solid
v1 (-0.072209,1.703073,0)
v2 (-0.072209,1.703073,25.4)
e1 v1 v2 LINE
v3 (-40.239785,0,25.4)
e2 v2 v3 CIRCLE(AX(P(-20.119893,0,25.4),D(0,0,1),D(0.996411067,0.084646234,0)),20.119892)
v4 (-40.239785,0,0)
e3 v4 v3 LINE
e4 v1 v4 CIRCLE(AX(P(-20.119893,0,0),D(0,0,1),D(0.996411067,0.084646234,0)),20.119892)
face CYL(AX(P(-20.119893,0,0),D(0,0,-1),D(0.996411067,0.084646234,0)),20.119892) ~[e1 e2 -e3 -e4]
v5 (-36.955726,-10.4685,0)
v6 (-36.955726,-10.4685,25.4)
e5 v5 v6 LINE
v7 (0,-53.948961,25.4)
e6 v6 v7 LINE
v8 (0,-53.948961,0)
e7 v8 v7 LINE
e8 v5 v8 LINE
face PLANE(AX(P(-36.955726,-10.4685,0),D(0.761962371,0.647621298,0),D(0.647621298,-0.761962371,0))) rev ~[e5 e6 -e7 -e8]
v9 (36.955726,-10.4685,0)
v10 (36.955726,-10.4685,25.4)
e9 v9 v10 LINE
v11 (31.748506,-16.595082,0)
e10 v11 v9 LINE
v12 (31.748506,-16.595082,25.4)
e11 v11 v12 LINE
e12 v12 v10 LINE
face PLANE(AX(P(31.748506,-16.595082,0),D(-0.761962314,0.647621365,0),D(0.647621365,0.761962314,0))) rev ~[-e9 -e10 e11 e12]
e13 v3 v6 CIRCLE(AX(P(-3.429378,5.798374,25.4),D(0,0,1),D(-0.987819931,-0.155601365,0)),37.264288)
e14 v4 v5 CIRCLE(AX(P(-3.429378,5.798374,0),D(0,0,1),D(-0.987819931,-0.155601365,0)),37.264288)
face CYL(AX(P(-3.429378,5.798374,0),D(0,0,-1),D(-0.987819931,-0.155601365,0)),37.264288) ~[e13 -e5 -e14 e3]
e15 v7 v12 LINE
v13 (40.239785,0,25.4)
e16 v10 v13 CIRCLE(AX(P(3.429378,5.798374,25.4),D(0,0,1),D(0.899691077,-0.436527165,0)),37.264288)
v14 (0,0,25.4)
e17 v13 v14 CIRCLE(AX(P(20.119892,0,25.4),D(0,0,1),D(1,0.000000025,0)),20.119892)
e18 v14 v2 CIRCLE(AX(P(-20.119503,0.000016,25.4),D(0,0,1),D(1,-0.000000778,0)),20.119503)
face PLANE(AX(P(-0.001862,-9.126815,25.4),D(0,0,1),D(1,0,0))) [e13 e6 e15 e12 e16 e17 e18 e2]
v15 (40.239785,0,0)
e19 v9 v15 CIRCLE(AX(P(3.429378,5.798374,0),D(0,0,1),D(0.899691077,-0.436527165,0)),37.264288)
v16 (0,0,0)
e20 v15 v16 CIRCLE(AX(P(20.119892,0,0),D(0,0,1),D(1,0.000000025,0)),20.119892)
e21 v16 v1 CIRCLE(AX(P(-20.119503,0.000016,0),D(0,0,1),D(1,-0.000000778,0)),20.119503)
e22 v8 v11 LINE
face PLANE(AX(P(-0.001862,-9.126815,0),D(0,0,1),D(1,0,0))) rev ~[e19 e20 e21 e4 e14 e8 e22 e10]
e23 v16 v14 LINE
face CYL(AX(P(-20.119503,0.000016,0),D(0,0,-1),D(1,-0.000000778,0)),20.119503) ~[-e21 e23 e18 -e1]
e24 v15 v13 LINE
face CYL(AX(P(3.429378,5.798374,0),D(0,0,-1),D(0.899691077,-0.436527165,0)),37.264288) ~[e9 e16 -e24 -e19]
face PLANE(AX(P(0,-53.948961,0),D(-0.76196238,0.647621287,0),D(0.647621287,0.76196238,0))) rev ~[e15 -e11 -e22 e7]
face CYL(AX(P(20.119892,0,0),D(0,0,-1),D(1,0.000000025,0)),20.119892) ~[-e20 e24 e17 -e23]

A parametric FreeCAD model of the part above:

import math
import FreeCAD as App
import Part
import Sketcher
Q = App.Units.Quantity

doc = App.newDocument("Part")
body = doc.addObject("PartDesign::Body", "Body")

sketch1 = body.newObject("Sketcher::SketchObject", "Sketch")
sketch1.AttachmentSupport = (doc.getObject("XY_Plane"), [""])
sketch1.MapMode = "FlatFace"
sketch1.addGeometry(Part.ArcOfCircle(Part.Circle(App.Vector(3.429378, 5.798374, 0), App.Vector(0, 0, 1), 37.264288), math.radians(-25.88251), math.radians(-8.951675)), False)
sketch1.addGeometry(Part.ArcOfCircle(Part.Circle(App.Vector(20.119892, 0, 0), App.Vector(0, 0, 1), 20.119892), math.radians(0.000001), math.radians(179.999999)), False)
sketch1.addGeometry(Part.ArcOfCircle(Part.Circle(App.Vector(-20.119503, 0.000016, 0), App.Vector(0, 0, 1), 20.119503), math.radians(-0.000045), math.radians(4.855731)), False)
sketch1.addGeometry(Part.ArcOfCircle(Part.Circle(App.Vector(-20.119893, 0, 0), App.Vector(0, 0, 1), 20.119892), math.radians(4.855682), math.radians(180)), False)
sketch1.addGeometry(Part.ArcOfCircle(Part.Circle(App.Vector(-3.429378, 5.798374, 0), App.Vector(0, 0, 1), 37.264288), math.radians(-171.048325), math.radians(-154.11749)), False)
sketch1.addGeometry(Part.LineSegment(App.Vector(-36.955726, -10.4685, 0), App.Vector(0, -53.948961, 0)), False)
sketch1.addGeometry(Part.LineSegment(App.Vector(0, -53.948961, 0), App.Vector(31.748506, -16.595082, 0)), False)
sketch1.addGeometry(Part.LineSegment(App.Vector(31.748506, -16.595082, 0), App.Vector(36.955726, -10.4685, 0)), False)
sketch1.addConstraint(Sketcher.Constraint("Coincident", 0, 2, 1, 1))
sketch1.addConstraint(Sketcher.Constraint("Coincident", 1, 2, 2, 1))
sketch1.addConstraint(Sketcher.Constraint("Coincident", 2, 2, 3, 1))
sketch1.addConstraint(Sketcher.Constraint("Coincident", 3, 2, 4, 1))
sketch1.addConstraint(Sketcher.Constraint("Coincident", 4, 2, 5, 1))
sketch1.addConstraint(Sketcher.Constraint("Coincident", 5, 2, 6, 1))
sketch1.addConstraint(Sketcher.Constraint("Coincident", 6, 2, 7, 1))
sketch1.addConstraint(Sketcher.Constraint("Coincident", 7, 2, 0, 1))
sketch1.addConstraint(Sketcher.Constraint("Coincident", 1, 2, -1, 1))
sketch1.addConstraint(Sketcher.Constraint("PointOnObject", 1, 3, -1))
sketch1.addConstraint(Sketcher.Constraint("PointOnObject", 3, 3, -1))
sketch1.addConstraint(Sketcher.Constraint("PointOnObject", 0, 2, -1))
sketch1.addConstraint(Sketcher.Constraint("PointOnObject", 3, 2, -1))
sketch1.addConstraint(Sketcher.Constraint("PointOnObject", 5, 2, -2))
sketch1.addConstraint(Sketcher.Constraint("Radius", 0, Q("37.264288 mm")))
sketch1.addConstraint(Sketcher.Constraint("Radius", 4, Q("37.264288 mm")))
sketch1.addConstraint(Sketcher.Constraint("Radius", 1, Q("20.119892 mm")))
sketch1.addConstraint(Sketcher.Constraint("Radius", 2, Q("20.119503 mm")))
sketch1.addConstraint(Sketcher.Constraint("Radius", 3, Q("20.119892 mm")))
sketch1.addConstraint(Sketcher.Constraint("DistanceY", 6, 2, 2, 2, Q("0.7203998 in")))
sketch1.addConstraint(Sketcher.Constraint("DistanceY", 4, 2, -1, 1, Q("10.4685 mm")))
sketch1.addConstraint(Sketcher.Constraint("DistanceY", 7, 2, -1, 1, Q("10.4685 mm")))
sketch1.addConstraint(Sketcher.Constraint("DistanceY", 2, 2, 4, 3, Q("4.095301 mm")))
sketch1.addConstraint(Sketcher.Constraint("DistanceY", 2, 2, 0, 3, Q("4.095301 mm")))
sketch1.addConstraint(Sketcher.Constraint("Distance", 5, Q("57.06379 mm")))
sketch1.addConstraint(Sketcher.Constraint("Distance", 6, Q("49.023259 mm")))
sketch1.addConstraint(Sketcher.Constraint("Distance", 7, Q("8.040532 mm")))
sketch1.addConstraint(Sketcher.Constraint("DistanceX", -1, 1, 0, 3, Q("3.429378 mm")))
pad1 = body.newObject("PartDesign::Pad", "Pad")
pad1.Profile = sketch1
pad1.Length = Q("1 in")

doc.recompute()
